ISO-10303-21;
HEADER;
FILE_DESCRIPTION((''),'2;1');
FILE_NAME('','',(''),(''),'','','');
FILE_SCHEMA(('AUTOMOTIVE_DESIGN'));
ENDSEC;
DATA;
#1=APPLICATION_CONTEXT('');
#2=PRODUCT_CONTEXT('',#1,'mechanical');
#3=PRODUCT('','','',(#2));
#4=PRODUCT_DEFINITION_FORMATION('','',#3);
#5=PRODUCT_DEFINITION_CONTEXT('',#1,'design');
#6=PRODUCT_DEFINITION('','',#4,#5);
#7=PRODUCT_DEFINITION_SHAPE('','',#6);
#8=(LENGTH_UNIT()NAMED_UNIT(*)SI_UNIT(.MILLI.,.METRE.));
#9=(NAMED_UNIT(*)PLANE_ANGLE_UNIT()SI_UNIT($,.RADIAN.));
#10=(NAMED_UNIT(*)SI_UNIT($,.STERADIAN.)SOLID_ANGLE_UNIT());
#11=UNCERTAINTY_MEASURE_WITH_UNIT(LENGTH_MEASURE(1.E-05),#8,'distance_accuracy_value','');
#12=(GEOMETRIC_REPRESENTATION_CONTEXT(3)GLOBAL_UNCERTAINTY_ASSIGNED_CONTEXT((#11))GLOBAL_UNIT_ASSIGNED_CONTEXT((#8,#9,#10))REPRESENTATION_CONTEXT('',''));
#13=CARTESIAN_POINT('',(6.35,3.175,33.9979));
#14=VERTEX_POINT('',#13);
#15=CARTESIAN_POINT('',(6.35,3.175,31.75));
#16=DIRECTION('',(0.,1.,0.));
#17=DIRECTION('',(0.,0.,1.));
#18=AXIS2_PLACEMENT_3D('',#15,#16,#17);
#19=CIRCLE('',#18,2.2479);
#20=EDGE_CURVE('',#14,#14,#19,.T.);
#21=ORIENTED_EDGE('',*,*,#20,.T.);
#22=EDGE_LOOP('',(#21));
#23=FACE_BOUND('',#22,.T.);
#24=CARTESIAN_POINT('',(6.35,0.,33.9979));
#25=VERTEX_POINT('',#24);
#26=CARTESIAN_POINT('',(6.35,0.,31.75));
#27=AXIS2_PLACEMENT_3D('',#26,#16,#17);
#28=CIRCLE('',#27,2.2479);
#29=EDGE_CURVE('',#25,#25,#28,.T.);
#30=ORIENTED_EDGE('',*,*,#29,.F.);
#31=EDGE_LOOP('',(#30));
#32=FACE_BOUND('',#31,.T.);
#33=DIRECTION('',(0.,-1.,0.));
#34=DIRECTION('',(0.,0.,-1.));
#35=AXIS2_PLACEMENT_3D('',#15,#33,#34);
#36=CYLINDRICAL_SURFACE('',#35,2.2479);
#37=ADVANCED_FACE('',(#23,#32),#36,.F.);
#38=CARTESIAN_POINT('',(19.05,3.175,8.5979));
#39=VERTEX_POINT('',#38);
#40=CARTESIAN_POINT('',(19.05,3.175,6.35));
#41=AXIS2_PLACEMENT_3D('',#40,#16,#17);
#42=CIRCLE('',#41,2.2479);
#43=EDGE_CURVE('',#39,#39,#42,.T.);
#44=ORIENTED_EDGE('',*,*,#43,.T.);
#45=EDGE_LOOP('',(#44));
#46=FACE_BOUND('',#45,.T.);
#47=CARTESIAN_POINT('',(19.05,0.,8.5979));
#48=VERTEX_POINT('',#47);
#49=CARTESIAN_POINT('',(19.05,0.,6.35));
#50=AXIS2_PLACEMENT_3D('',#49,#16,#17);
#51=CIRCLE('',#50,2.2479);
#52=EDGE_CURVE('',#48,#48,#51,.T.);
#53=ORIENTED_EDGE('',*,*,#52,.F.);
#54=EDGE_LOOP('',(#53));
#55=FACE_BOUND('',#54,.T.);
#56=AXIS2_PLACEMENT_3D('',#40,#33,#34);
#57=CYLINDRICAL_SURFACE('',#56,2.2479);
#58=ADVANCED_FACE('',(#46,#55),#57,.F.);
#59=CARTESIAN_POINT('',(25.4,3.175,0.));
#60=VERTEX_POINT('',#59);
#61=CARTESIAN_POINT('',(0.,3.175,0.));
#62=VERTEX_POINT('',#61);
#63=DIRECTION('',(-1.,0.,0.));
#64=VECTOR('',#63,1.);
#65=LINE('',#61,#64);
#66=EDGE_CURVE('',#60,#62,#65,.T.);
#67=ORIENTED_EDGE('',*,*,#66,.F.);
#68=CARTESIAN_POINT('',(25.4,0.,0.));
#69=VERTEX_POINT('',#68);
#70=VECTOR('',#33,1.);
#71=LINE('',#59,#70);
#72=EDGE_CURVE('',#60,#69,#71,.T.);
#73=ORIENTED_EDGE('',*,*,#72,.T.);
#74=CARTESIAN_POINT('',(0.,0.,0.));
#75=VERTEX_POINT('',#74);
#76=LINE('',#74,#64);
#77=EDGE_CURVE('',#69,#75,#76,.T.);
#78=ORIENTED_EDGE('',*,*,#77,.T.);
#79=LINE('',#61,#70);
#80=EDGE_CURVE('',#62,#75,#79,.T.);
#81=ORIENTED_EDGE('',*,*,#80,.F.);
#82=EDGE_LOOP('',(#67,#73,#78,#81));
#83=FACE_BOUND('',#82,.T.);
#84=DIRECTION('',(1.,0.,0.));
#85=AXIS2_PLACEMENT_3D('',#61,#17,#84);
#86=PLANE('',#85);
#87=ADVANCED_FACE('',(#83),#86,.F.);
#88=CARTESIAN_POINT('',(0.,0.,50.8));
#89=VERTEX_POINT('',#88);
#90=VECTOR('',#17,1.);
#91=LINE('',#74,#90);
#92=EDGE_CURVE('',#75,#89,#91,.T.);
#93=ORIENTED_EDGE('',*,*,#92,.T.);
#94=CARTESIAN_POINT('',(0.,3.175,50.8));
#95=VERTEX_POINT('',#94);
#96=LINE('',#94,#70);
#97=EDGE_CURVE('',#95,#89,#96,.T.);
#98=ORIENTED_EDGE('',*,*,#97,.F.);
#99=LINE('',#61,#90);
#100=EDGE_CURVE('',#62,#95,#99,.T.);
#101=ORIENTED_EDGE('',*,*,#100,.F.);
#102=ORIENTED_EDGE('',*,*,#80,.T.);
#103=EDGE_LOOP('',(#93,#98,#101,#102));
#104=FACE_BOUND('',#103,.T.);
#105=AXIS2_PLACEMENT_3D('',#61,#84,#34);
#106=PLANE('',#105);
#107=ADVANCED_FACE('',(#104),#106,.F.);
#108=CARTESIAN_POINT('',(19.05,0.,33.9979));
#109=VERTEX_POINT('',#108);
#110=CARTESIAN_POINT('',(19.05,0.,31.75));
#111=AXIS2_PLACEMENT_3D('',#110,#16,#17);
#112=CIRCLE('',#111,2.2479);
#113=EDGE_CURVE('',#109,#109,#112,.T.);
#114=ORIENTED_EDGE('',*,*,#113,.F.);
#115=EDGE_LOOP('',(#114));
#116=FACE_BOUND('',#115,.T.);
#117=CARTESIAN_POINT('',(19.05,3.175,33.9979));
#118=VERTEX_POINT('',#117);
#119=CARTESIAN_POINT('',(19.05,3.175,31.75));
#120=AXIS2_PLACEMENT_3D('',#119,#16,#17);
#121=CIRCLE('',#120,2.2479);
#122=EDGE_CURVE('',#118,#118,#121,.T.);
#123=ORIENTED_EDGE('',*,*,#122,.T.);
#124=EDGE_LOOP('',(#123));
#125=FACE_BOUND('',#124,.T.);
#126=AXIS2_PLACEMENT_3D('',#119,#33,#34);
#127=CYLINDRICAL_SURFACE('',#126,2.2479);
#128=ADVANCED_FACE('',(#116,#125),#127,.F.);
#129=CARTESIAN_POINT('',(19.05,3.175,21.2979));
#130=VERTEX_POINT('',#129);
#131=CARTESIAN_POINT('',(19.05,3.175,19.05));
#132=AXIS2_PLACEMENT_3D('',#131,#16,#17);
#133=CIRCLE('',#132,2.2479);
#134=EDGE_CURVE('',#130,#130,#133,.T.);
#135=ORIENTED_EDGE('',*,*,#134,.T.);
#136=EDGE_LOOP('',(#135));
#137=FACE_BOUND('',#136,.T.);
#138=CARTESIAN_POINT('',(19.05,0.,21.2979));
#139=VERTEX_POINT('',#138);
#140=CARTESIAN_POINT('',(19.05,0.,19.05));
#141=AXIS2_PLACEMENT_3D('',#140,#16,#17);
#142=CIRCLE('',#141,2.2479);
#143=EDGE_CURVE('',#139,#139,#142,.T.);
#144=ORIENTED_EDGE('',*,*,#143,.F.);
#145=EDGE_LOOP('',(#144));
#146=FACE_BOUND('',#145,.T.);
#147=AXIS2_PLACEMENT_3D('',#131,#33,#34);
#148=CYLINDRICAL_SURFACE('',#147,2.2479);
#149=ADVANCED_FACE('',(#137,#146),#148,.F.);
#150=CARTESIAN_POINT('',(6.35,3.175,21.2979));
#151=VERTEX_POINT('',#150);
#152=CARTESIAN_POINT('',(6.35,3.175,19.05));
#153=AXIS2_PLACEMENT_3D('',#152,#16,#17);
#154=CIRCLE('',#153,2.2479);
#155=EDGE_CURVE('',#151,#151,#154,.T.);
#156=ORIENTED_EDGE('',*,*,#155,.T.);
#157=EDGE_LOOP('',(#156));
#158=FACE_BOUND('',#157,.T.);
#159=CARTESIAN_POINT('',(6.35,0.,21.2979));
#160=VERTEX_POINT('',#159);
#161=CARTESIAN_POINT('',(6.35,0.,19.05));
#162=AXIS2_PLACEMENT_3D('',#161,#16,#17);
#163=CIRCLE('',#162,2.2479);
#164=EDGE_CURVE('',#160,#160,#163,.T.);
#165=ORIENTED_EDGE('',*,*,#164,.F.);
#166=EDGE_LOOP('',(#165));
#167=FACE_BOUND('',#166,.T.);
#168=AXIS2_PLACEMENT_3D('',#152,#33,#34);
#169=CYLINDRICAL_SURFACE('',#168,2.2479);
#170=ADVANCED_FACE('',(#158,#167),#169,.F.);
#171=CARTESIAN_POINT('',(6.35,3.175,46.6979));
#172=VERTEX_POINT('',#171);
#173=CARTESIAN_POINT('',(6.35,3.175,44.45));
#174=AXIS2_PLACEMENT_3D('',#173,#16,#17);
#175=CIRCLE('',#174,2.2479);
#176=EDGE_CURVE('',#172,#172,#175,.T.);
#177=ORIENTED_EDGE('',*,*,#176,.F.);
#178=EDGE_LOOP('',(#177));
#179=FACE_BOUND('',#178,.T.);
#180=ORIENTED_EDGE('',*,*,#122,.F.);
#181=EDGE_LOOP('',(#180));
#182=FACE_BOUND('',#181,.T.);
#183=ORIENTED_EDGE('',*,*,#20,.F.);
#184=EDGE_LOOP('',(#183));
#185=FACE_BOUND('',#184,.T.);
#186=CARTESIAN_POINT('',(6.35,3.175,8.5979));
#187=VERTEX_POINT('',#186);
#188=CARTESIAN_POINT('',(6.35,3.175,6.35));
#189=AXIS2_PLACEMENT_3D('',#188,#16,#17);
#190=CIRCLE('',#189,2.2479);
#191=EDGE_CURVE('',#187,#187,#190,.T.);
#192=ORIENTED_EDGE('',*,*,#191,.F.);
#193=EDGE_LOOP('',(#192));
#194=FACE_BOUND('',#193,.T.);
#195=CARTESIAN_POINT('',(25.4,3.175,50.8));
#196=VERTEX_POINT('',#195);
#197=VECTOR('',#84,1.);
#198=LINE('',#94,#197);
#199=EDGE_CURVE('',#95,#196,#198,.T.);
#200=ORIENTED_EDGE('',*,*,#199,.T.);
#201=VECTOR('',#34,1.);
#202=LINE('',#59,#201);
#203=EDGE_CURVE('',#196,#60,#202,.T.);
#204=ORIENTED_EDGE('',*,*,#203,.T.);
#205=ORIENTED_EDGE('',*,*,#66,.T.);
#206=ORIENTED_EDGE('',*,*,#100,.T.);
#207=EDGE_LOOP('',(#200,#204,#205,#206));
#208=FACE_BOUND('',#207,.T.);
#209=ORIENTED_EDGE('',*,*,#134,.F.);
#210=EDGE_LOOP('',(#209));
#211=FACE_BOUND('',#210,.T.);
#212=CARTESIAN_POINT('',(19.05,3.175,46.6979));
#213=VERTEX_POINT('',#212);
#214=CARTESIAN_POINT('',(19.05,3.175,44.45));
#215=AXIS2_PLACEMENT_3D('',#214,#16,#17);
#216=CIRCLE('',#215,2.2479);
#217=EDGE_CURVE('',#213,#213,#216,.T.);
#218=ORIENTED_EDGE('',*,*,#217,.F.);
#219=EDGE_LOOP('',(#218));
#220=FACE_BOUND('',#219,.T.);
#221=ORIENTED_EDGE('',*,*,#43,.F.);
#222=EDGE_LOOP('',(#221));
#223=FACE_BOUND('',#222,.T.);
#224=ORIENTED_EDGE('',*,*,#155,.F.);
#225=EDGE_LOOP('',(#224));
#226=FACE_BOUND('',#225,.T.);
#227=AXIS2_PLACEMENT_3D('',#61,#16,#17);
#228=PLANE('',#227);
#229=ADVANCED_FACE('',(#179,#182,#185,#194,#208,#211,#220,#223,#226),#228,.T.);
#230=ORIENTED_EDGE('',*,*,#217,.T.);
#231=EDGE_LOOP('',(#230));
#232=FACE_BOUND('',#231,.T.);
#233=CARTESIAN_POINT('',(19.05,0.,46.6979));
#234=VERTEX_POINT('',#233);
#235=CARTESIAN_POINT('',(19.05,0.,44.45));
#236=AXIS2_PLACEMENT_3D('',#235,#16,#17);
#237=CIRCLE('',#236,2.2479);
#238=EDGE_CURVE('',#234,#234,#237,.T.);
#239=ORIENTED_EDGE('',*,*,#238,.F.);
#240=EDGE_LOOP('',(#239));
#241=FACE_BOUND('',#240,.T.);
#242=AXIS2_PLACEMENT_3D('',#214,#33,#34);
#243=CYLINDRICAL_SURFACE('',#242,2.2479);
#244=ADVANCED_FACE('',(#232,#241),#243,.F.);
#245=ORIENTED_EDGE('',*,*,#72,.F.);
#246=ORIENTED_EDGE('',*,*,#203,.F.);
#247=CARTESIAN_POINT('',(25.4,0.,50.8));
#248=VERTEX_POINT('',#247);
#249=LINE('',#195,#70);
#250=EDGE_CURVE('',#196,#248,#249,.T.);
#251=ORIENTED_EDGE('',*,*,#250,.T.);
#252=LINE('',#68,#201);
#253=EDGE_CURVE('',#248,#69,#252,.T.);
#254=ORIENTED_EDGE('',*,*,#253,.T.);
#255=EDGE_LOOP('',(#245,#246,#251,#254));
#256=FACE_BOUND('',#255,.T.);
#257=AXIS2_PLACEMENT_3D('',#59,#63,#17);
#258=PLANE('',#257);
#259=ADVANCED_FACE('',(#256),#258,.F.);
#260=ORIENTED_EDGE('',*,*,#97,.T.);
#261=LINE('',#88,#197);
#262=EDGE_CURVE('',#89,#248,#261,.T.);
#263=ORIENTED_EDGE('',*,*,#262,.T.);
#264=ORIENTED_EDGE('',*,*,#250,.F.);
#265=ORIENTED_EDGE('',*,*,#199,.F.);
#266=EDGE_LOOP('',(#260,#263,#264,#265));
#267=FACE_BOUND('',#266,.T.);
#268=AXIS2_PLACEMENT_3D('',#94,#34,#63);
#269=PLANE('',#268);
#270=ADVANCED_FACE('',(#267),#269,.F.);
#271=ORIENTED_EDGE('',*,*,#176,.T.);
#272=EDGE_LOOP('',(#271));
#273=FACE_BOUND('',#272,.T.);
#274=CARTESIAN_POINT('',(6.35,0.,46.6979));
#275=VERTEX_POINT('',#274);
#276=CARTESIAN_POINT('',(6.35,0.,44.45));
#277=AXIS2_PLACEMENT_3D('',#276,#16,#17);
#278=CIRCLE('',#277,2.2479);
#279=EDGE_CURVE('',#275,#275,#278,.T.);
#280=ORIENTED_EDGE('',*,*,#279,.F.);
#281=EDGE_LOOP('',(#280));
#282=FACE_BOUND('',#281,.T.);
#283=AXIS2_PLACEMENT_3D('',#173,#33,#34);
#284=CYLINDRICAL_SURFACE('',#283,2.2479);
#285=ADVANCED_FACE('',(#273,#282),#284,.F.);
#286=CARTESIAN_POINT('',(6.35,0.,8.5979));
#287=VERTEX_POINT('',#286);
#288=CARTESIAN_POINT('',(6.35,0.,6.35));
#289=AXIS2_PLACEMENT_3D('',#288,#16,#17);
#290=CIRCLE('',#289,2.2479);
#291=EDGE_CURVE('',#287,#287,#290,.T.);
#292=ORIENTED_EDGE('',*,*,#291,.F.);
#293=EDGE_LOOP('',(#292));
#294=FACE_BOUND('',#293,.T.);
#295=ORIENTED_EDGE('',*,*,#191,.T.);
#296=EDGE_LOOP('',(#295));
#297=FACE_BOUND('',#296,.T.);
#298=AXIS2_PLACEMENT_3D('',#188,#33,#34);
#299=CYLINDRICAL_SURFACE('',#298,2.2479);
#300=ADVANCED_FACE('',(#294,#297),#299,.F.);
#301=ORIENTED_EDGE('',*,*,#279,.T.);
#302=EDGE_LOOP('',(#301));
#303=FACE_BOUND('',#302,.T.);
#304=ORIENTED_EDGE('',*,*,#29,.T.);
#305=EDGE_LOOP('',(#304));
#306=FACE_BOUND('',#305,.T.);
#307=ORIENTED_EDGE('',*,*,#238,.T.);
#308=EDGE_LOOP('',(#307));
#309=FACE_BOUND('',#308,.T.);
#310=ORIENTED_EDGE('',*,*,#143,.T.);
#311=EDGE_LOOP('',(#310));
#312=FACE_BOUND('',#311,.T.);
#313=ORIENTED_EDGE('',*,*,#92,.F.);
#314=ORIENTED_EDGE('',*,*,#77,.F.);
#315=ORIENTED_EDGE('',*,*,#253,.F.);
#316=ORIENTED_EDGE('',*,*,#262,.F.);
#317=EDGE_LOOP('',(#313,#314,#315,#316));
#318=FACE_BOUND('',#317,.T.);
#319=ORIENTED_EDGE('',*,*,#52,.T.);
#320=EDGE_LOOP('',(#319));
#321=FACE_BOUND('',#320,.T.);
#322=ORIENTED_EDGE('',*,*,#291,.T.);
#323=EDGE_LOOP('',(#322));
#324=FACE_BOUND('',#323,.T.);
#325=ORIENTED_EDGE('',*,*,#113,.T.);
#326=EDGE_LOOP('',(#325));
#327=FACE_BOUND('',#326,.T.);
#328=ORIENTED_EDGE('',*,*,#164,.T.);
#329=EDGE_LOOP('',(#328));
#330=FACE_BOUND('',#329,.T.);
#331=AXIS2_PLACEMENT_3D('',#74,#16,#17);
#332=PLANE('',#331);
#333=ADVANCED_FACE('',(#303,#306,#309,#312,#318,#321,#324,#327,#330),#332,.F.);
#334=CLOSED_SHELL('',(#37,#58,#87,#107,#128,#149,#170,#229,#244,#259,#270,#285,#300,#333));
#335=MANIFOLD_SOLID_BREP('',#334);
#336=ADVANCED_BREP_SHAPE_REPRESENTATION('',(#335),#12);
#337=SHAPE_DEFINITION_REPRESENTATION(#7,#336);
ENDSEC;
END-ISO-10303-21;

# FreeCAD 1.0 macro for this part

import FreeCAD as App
import Part
import Sketcher
Q = App.Units.Quantity


def add_polygon(sketch, points):
    """Adds a closed chain of lines whose ends are joined by coincident constraints."""
    first, n = sketch.GeometryCount, len(points)
    for a, b in zip(points, points[1:] + points[:1]):
        sketch.addGeometry(Part.LineSegment(App.Vector(*a, 0), App.Vector(*b, 0)), False)
    for i in range(n):
        sketch.addConstraint(Sketcher.Constraint("Coincident", first + i, 2, first + (i + 1) % n, 1))

doc = App.newDocument("Part")
params = doc.addObject("Spreadsheet::Sheet", "Params")
for row, (alias, value) in enumerate([
    ("sketch1_width", "1 in"),
    ("sketch1_height", "2 in"),
    ("sketch1_diameter", "0.177 in"),
    ("pad1_length", "0.125 in"),
], start=1):
    params.set(f"A{row}", alias)
    params.set(f"B{row}", "=" + value)
    params.setAlias(f"B{row}", alias)

body = doc.addObject("PartDesign::Body", "Body")

sketch1 = doc.addObject("Sketcher::SketchObject", "Sketch")
body.addObject(sketch1)
sketch1.AttachmentSupport = (doc.XZ_Plane, [""])
sketch1.MapMode = "FlatFace"
add_polygon(sketch1, [(0, 0), (0, 50.8), (25.4, 50.8), (25.4, 0)])
sketch1.addGeometry(Part.Circle(App.Vector(6.35, 44.45, 0), App.Vector(0, 0, 1), 2.2479), False)
sketch1.addGeometry(Part.Circle(App.Vector(6.35, 31.75, 0), App.Vector(0, 0, 1), 2.2479), False)
sketch1.addGeometry(Part.Circle(App.Vector(19.05, 44.45, 0), App.Vector(0, 0, 1), 2.2479), False)
sketch1.addGeometry(Part.Circle(App.Vector(19.05, 31.75, 0), App.Vector(0, 0, 1), 2.2479), False)
sketch1.addGeometry(Part.Circle(App.Vector(6.35, 19.05, 0), App.Vector(0, 0, 1), 2.2479), False)
sketch1.addGeometry(Part.Circle(App.Vector(6.35, 6.35, 0), App.Vector(0, 0, 1), 2.2479), False)
sketch1.addGeometry(Part.Circle(App.Vector(19.05, 19.05, 0), App.Vector(0, 0, 1), 2.2479), False)
sketch1.addGeometry(Part.Circle(App.Vector(19.05, 6.35, 0), App.Vector(0, 0, 1), 2.2479), False)
sketch1.addConstraint([
    Sketcher.Constraint("Vertical", 0),
    Sketcher.Constraint("Horizontal", 1),
    Sketcher.Constraint("Vertical", 2),
    Sketcher.Constraint("Horizontal", 3),
    Sketcher.Constraint("Coincident", 3, 2, -1, 1),
    Sketcher.Constraint("Equal", 4, 5),
    Sketcher.Constraint("Equal", 5, 6),
    Sketcher.Constraint("Equal", 6, 7),
    Sketcher.Constraint("Equal", 7, 8),
    Sketcher.Constraint("Equal", 8, 9),
    Sketcher.Constraint("Equal", 9, 10),
    Sketcher.Constraint("Equal", 10, 11),
    Sketcher.Constraint("Horizontal", 4, 3, 6, 3),
    Sketcher.Constraint("Horizontal", 5, 3, 7, 3),
    Sketcher.Constraint("Horizontal", 8, 3, 10, 3),
    Sketcher.Constraint("Horizontal", 9, 3, 11, 3),
    Sketcher.Constraint("Vertical", 4, 3, 5, 3),
    Sketcher.Constraint("Vertical", 6, 3, 7, 3),
    Sketcher.Constraint("Vertical", 5, 3, 8, 3),
    Sketcher.Constraint("Vertical", 8, 3, 9, 3),
    Sketcher.Constraint("Vertical", 7, 3, 10, 3),
    Sketcher.Constraint("Vertical", 10, 3, 11, 3),
    Sketcher.Constraint("DistanceX", 1, 1, 1, 2, Q("1 in")),
    Sketcher.Constraint("DistanceY", 0, 1, 0, 2, Q("2 in")),
    Sketcher.Constraint("Diameter", 4, Q("0.177 in")),
    Sketcher.Constraint("DistanceY", 8, 3, 4, 3, Q("1 in")),
    Sketcher.Constraint("DistanceY", 9, 3, 5, 3, Q("1 in")),
    Sketcher.Constraint("DistanceY", 5, 3, 4, 3, Q("0.5 in")),
    Sketcher.Constraint("DistanceX", 4, 3, 6, 3, Q("0.5 in")),
    Sketcher.Constraint("DistanceX", -1, 1, 4, 3, Q("0.25 in")),
    Sketcher.Constraint("DistanceY", -1, 1, 4, 3, Q("1.75 in")),
])
sketch1.setExpression("Constraints[26]", "Params.sketch1_width")
sketch1.setExpression("Constraints[27]", "Params.sketch1_height")
sketch1.setExpression("Constraints[28]", "Params.sketch1_diameter")
pad1 = doc.addObject("PartDesign::Pad", "Pad")
body.addObject(pad1)
pad1.Profile = sketch1
pad1.setExpression("Length", "Params.pad1_length")
pad1.Reversed = True

doc.recompute()
